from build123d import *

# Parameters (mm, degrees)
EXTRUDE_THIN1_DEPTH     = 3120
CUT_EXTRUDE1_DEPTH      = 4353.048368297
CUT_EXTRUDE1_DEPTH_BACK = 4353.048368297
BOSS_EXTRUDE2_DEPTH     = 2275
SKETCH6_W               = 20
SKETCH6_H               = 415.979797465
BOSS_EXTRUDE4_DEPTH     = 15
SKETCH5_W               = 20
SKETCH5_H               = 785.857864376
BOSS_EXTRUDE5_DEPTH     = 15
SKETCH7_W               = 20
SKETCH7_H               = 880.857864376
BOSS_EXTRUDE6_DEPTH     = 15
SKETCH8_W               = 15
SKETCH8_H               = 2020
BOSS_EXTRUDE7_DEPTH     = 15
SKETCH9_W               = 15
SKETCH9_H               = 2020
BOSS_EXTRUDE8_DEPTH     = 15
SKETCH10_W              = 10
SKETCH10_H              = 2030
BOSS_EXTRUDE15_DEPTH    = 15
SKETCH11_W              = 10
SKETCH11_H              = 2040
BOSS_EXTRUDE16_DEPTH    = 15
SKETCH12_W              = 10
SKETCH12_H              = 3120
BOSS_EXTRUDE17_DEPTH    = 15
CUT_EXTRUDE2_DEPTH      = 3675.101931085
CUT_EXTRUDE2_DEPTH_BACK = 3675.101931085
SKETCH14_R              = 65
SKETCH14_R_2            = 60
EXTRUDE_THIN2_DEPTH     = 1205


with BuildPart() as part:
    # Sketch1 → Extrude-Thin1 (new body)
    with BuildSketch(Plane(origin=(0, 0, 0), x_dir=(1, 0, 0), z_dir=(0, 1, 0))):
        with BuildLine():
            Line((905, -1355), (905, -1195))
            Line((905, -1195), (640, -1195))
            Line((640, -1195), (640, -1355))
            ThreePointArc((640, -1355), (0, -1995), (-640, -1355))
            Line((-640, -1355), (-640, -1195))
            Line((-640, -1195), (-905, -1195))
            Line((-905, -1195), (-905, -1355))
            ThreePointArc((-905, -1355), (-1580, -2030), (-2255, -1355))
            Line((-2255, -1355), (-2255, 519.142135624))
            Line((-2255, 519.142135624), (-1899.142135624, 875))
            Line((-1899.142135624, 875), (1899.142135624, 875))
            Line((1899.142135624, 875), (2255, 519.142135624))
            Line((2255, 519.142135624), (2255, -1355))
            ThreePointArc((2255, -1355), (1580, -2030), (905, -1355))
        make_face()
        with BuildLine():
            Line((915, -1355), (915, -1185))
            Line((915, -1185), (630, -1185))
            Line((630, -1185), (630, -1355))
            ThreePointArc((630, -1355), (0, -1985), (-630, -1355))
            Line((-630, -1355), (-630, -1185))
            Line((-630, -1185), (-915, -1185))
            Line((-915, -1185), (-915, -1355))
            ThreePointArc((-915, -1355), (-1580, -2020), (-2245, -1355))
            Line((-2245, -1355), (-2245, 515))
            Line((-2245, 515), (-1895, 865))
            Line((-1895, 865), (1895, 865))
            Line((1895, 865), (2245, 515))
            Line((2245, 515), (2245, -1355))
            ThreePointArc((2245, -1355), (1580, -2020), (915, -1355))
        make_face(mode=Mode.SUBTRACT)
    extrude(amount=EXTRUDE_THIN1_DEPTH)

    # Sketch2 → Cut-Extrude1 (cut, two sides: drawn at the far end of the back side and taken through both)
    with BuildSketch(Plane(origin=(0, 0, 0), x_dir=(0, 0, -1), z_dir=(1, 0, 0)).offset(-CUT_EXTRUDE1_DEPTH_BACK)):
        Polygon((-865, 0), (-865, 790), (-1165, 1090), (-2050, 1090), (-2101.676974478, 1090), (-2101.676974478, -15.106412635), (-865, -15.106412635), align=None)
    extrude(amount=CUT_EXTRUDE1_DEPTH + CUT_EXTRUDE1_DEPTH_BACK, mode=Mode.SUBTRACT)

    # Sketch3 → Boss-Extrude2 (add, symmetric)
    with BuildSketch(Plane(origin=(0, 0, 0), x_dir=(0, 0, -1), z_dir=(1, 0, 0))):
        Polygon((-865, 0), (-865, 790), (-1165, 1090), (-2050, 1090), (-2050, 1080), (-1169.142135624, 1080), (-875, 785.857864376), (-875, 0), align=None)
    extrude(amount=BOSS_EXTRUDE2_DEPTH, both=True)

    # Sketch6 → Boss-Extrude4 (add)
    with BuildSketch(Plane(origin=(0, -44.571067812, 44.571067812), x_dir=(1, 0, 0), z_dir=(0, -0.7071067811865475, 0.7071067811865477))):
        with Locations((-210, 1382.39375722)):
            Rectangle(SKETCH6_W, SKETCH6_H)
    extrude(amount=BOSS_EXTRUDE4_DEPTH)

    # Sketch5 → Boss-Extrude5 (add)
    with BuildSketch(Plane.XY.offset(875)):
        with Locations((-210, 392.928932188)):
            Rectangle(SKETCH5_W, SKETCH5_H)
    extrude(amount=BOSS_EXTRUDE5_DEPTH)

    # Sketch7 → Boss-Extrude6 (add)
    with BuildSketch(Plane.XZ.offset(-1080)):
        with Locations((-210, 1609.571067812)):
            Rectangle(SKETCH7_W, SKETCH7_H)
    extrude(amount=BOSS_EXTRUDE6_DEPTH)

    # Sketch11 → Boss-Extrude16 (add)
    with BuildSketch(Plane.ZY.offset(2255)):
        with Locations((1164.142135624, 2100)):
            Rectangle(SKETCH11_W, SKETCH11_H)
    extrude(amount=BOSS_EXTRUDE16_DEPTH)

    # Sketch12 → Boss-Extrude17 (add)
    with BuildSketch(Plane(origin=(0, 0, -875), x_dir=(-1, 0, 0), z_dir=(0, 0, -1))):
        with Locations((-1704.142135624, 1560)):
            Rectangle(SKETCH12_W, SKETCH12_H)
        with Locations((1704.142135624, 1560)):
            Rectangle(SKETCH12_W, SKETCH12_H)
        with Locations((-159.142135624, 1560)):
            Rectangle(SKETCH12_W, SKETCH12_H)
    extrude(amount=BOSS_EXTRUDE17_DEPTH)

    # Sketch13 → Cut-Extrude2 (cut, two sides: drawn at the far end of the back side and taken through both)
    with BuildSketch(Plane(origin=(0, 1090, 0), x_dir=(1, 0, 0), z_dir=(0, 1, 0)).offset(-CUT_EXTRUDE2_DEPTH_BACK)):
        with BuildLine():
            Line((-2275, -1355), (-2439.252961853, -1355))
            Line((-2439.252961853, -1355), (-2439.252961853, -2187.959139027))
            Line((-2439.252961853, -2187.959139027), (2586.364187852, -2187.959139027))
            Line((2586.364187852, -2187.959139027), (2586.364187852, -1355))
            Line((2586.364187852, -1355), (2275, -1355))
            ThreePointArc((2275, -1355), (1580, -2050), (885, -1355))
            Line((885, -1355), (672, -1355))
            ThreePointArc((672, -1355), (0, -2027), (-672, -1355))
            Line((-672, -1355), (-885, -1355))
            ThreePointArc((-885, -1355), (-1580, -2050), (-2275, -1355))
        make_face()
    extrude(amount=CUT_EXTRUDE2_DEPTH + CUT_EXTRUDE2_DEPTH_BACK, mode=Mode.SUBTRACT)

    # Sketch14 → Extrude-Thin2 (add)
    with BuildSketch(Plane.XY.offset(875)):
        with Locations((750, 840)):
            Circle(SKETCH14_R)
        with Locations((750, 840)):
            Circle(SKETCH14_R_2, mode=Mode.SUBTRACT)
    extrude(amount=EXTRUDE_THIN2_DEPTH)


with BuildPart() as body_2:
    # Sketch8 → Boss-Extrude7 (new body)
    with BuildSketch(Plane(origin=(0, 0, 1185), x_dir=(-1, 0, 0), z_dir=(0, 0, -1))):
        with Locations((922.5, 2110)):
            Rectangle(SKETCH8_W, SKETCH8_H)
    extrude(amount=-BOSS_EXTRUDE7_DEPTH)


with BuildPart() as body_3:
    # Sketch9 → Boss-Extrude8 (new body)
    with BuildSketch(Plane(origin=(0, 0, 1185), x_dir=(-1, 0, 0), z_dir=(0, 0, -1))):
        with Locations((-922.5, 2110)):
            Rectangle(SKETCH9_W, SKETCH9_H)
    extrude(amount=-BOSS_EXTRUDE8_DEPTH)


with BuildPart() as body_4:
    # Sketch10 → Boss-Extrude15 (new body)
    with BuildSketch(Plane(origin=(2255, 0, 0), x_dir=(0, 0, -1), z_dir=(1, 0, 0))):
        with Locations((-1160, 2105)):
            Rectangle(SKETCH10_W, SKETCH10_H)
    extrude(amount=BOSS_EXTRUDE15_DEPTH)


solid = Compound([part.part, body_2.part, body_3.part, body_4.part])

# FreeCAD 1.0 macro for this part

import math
import FreeCAD as App
import Part
import Sketcher
from FreeCAD import Vector
Q = App.Units.Quantity


def add_polygon(sketch, points):
    """Adds a closed chain of lines whose ends are joined by coincident constraints."""
    first, n = sketch.GeometryCount, len(points)
    for a, b in zip(points, points[1:] + points[:1]):
        sketch.addGeometry(Part.LineSegment(App.Vector(*a, 0), App.Vector(*b, 0)), False)
    for i in range(n):
        sketch.addConstraint(Sketcher.Constraint("Coincident", first + i, 2, first + (i + 1) % n, 1))

doc = App.newDocument("Part")
body = doc.addObject("PartDesign::Body", "Body")

# Sketch on XZ plane
sketch1 = body.newObject("Sketcher::SketchObject", "Sketch")
sketch1.AttachmentSupport = (doc.getObject("XZ_Plane"), [""])
sketch1.MapMode = "FlatFace"
sketch1.addGeometry(Part.LineSegment(Vector(905, 1195, 0), Vector(905, 1355, 0)), False)
sketch1.addGeometry(Part.ArcOfCircle(Part.Circle(Vector(1580, 1355, 0), Vector(0, 0, 1), 675), math.radians(0), math.radians(180)), False)
sketch1.addGeometry(Part.LineSegment(Vector(2255, 1355, 0), Vector(2255, -519, 0)), False)
sketch1.addGeometry(Part.LineSegment(Vector(2255, -519, 0), Vector(1899, -875, 0)), False)
sketch1.addGeometry(Part.LineSegment(Vector(1899, -875, 0), Vector(-1899, -875, 0)), False)
sketch1.addGeometry(Part.LineSegment(Vector(-1899, -875, 0), Vector(-2255, -519, 0)), False)
sketch1.addGeometry(Part.LineSegment(Vector(-2255, -519, 0), Vector(-2255, 1355, 0)), False)
sketch1.addGeometry(Part.ArcOfCircle(Part.Circle(Vector(-1580, 1355, 0), Vector(0, 0, 1), 675), math.radians(0), math.radians(180)), False)
sketch1.addGeometry(Part.LineSegment(Vector(-905, 1355, 0), Vector(-905, 1195, 0)), False)
sketch1.addGeometry(Part.LineSegment(Vector(-905, 1195, 0), Vector(-640, 1195, 0)), False)
sketch1.addGeometry(Part.LineSegment(Vector(-640, 1195, 0), Vector(-640, 1355, 0)), False)
sketch1.addGeometry(Part.ArcOfCircle(Part.Circle(Vector(0, 1355, 0), Vector(0, 0, 1), 640), math.radians(0), math.radians(180)), False)
sketch1.addGeometry(Part.LineSegment(Vector(640, 1355, 0), Vector(640, 1195, 0)), False)
sketch1.addGeometry(Part.LineSegment(Vector(640, 1195, 0), Vector(905, 1195, 0)), False)
sketch1.addGeometry(Part.LineSegment(Vector(915, 1355, 0), Vector(915, 1185, 0)), False)
sketch1.addGeometry(Part.LineSegment(Vector(915, 1185, 0), Vector(630, 1185, 0)), False)
sketch1.addGeometry(Part.LineSegment(Vector(630, 1185, 0), Vector(630, 1355, 0)), False)
sketch1.addGeometry(Part.ArcOfCircle(Part.Circle(Vector(0, 1355, 0), Vector(0, 0, 1), 630), math.radians(0), math.radians(180)), False)
sketch1.addGeometry(Part.LineSegment(Vector(-630, 1355, 0), Vector(-630, 1185, 0)), False)
sketch1.addGeometry(Part.LineSegment(Vector(-630, 1185, 0), Vector(-915, 1185, 0)), False)
sketch1.addGeometry(Part.LineSegment(Vector(-915, 1185, 0), Vector(-915, 1355, 0)), False)
sketch1.addGeometry(Part.ArcOfCircle(Part.Circle(Vector(-1580, 1355, 0), Vector(0, 0, 1), 665), math.radians(0), math.radians(180)), False)
sketch1.addGeometry(Part.LineSegment(Vector(-2245, 1355, 0), Vector(-2245, -515, 0)), False)
sketch1.addGeometry(Part.LineSegment(Vector(-2245, -515, 0), Vector(-1895, -865, 0)), False)
sketch1.addGeometry(Part.LineSegment(Vector(-1895, -865, 0), Vector(1895, -865, 0)), False)
sketch1.addGeometry(Part.LineSegment(Vector(1895, -865, 0), Vector(2245, -515, 0)), False)
sketch1.addGeometry(Part.LineSegment(Vector(2245, -515, 0), Vector(2245, 1355, 0)), False)
sketch1.addGeometry(Part.ArcOfCircle(Part.Circle(Vector(1580, 1355, 0), Vector(0, 0, 1), 665), math.radians(0), math.radians(180)), False)
sketch1.addConstraint(Sketcher.Constraint("Tangent", 0, 2, 1, 2))
sketch1.addConstraint(Sketcher.Constraint("Tangent", 1, 1, 2, 1))
sketch1.addConstraint(Sketcher.Constraint("Coincident", 2, 2, 3, 1))
sketch1.addConstraint(Sketcher.Constraint("Coincident", 3, 2, 4, 1))
sketch1.addConstraint(Sketcher.Constraint("Coincident", 4, 2, 5, 1))
sketch1.addConstraint(Sketcher.Constraint("Coincident", 5, 2, 6, 1))
sketch1.addConstraint(Sketcher.Constraint("Tangent", 6, 2, 7, 2))
sketch1.addConstraint(Sketcher.Constraint("Tangent", 7, 1, 8, 1))
sketch1.addConstraint(Sketcher.Constraint("Coincident", 8, 2, 9, 1))
sketch1.addConstraint(Sketcher.Constraint("Coincident", 9, 2, 10, 1))
sketch1.addConstraint(Sketcher.Constraint("Tangent", 10, 2, 11, 2))
sketch1.addConstraint(Sketcher.Constraint("Tangent", 11, 1, 12, 1))
sketch1.addConstraint(Sketcher.Constraint("Coincident", 12, 2, 13, 1))
sketch1.addConstraint(Sketcher.Constraint("Coincident", 13, 2, 0, 1))
sketch1.addConstraint(Sketcher.Constraint("Coincident", 14, 2, 15, 1))
sketch1.addConstraint(Sketcher.Constraint("Coincident", 15, 2, 16, 1))
sketch1.addConstraint(Sketcher.Constraint("Tangent", 16, 2, 17, 1))
sketch1.addConstraint(Sketcher.Constraint("Tangent", 17, 2, 18, 1))
sketch1.addConstraint(Sketcher.Constraint("Coincident", 18, 2, 19, 1))
sketch1.addConstraint(Sketcher.Constraint("Coincident", 19, 2, 20, 1))
sketch1.addConstraint(Sketcher.Constraint("Tangent", 20, 2, 21, 1))
sketch1.addConstraint(Sketcher.Constraint("Tangent", 21, 2, 22, 1))
sketch1.addConstraint(Sketcher.Constraint("Coincident", 22, 2, 23, 1))
sketch1.addConstraint(Sketcher.Constraint("Coincident", 23, 2, 24, 1))
sketch1.addConstraint(Sketcher.Constraint("Coincident", 24, 2, 25, 1))
sketch1.addConstraint(Sketcher.Constraint("Coincident", 25, 2, 26, 1))
sketch1.addConstraint(Sketcher.Constraint("Tangent", 26, 2, 27, 1))
sketch1.addConstraint(Sketcher.Constraint("Tangent", 27, 2, 14, 1))
sketch1.addConstraint(Sketcher.Constraint("Vertical", 0))
sketch1.addConstraint(Sketcher.Constraint("Vertical", 2))
sketch1.addConstraint(Sketcher.Constraint("Horizontal", 4))
sketch1.addConstraint(Sketcher.Constraint("Vertical", 6))
sketch1.addConstraint(Sketcher.Constraint("Vertical", 8))
sketch1.addConstraint(Sketcher.Constraint("Horizontal", 9))
sketch1.addConstraint(Sketcher.Constraint("Vertical", 10))
sketch1.addConstraint(Sketcher.Constraint("Vertical", 12))
sketch1.addConstraint(Sketcher.Constraint("Horizontal", 13))
sketch1.addConstraint(Sketcher.Constraint("Vertical", 14))
sketch1.addConstraint(Sketcher.Constraint("Horizontal", 15))
sketch1.addConstraint(Sketcher.Constraint("Vertical", 16))
sketch1.addConstraint(Sketcher.Constraint("Vertical", 18))
sketch1.addConstraint(Sketcher.Constraint("Horizontal", 19))
sketch1.addConstraint(Sketcher.Constraint("Vertical", 20))
sketch1.addConstraint(Sketcher.Constraint("Vertical", 22))
sketch1.addConstraint(Sketcher.Constraint("Horizontal", 24))
sketch1.addConstraint(Sketcher.Constraint("Vertical", 26))
sketch1.addConstraint(Sketcher.Constraint("Coincident", 17, 3, 11, 3))
sketch1.addConstraint(Sketcher.Constraint("Coincident", 21, 3, 7, 3))
sketch1.addConstraint(Sketcher.Constraint("Coincident", 27, 3, 1, 3))
sketch1.addConstraint(Sketcher.Constraint("Equal", 1, 7))
sketch1.addConstraint(Sketcher.Constraint("Equal", 21, 27))
sketch1.addConstraint(Sketcher.Constraint("Symmetric", 1, 3, 7, 3, -2))
sketch1.addConstraint(Sketcher.Constraint("Symmetric", 9, 2, 12, 2, -2))
sketch1.addConstraint(Sketcher.Constraint("Perpendicular", 3, 5))
sketch1.addConstraint(Sketcher.Constraint("Parallel", 5, 23))
sketch1.addConstraint(Sketcher.Constraint("Perpendicular", 23, 25))
sketch1.addConstraint(Sketcher.Constraint("Horizontal", 7, 3, 11, 3))
sketch1.addConstraint(Sketcher.Constraint("Horizontal", 2, 2, 5, 2))
sketch1.addConstraint(Sketcher.Constraint("Horizontal", 15, 2, 18, 2))
sketch1.addConstraint(Sketcher.Constraint("Horizontal", 22, 2, 25, 2))
sketch1.addConstraint(Sketcher.Constraint("Equal", 3, 5))
sketch1.addConstraint(Sketcher.Constraint("Radius", 1, 675.0))
sketch1.addConstraint(Sketcher.Constraint("Radius", 11, 640.0))
sketch1.addConstraint(Sketcher.Constraint("Radius", 17, 630.0))
sketch1.addConstraint(Sketcher.Constraint("Radius", 21, 665.0))
sketch1.addConstraint(Sketcher.Constraint("DistanceX", 9, 1, 9, 2, 265.0))
sketch1.addConstraint(Sketcher.Constraint("DistanceX", 24, 1, 24, 2, 3790.0))
sketch1.addConstraint(Sketcher.Constraint("DistanceY", 0, 1, 0, 2, 160.0))
sketch1.addConstraint(Sketcher.Constraint("DistanceY", 14, 2, 14, 1, 170.0))
sketch1.addConstraint(Sketcher.Constraint("DistanceY", 22, 2, 22, 1, 1870.0))
sketch1.addConstraint(Sketcher.Constraint("DistanceY", -1, 1, 1, 3, 1355.0))
sketch1.addConstraint(Sketcher.Constraint("DistanceY", 3, 2, -1, 1, 875.0))
sketch1.addConstraint(Sketcher.Constraint("DistanceX", 4, 2, 4, 1, 3798.284271))
pad1 = body.newObject("PartDesign::Pad", "Pad")
pad1.Profile = sketch1
pad1.Length = 3120
pad1.Reversed = True

# Sketch on YZ plane
sketch2 = body.newObject("Sketcher::SketchObject", "Sketch001")
sketch2.AttachmentSupport = (doc.getObject("YZ_Plane"), [""])
sketch2.MapMode = "FlatFace"
add_polygon(sketch2, [(790, 865), (1090, 1165), (1090, 2102), (-15, 2102), (-15, 865)])  # lines 0-4
sketch2.addConstraint(Sketcher.Constraint("Vertical", 1))
sketch2.addConstraint(Sketcher.Constraint("Horizontal", 2))
sketch2.addConstraint(Sketcher.Constraint("Vertical", 3))
sketch2.addConstraint(Sketcher.Constraint("Horizontal", 4))
sketch2.addConstraint(Sketcher.Constraint("Angle", 0, Q("45 deg")))
sketch2.addConstraint(Sketcher.Constraint("DistanceX", -1, 1, 0, 2, 1090.0))
sketch2.addConstraint(Sketcher.Constraint("DistanceY", -1, 1, 0, 2, 1165.0))
sketch2.addConstraint(Sketcher.Constraint("DistanceY", -1, 1, 3, 2, 865.0))
sketch2.addConstraint(Sketcher.Constraint("DistanceX", 2, 2, 2, 1, 1105.106413))
sketch2.addConstraint(Sketcher.Constraint("DistanceY", 1, 1, 1, 2, 936.676974))
pocket1 = body.newObject("PartDesign::Pocket", "Pocket")
pocket1.Profile = sketch2
pocket1.Type = "ThroughAll"
pocket1.Midplane = True

# Sketch on YZ plane
sketch3 = body.newObject("Sketcher::SketchObject", "Sketch002")
sketch3.AttachmentSupport = (doc.getObject("YZ_Plane"), [""])
sketch3.MapMode = "FlatFace"
add_polygon(sketch3, [(0, 865), (790, 865), (1090, 1165), (1090, 2050), (1080, 2050), (1080, 1169), (786, 875), (0, 875)])  # lines 0-7
sketch3.addConstraint(Sketcher.Constraint("Horizontal", 0))
sketch3.addConstraint(Sketcher.Constraint("Vertical", 2))
sketch3.addConstraint(Sketcher.Constraint("Horizontal", 3))
sketch3.addConstraint(Sketcher.Constraint("Vertical", 4))
sketch3.addConstraint(Sketcher.Constraint("Horizontal", 6))
sketch3.addConstraint(Sketcher.Constraint("Vertical", 7))
sketch3.addConstraint(Sketcher.Constraint("PointOnObject", 6, 2, -2))
sketch3.addConstraint(Sketcher.Constraint("Parallel", 1, 5))
sketch3.addConstraint(Sketcher.Constraint("Equal", 3, 7))
sketch3.addConstraint(Sketcher.Constraint("DistanceX", 0, 1, 0, 2, 790.0))
sketch3.addConstraint(Sketcher.Constraint("DistanceX", 3, 2, 3, 1, 10.0))
sketch3.addConstraint(Sketcher.Constraint("DistanceY", 2, 1, 2, 2, 885.0))
sketch3.addConstraint(Sketcher.Constraint("Angle", 1, Q("45 deg")))
sketch3.addConstraint(Sketcher.Constraint("DistanceY", -1, 1, 0, 2, 865.0))
sketch3.addConstraint(Sketcher.Constraint("DistanceX", -1, 1, 1, 2, 1090.0))
sketch3.addConstraint(Sketcher.Constraint("DistanceX", 6, 2, 6, 1, 785.857864))
pad2 = body.newObject("PartDesign::Pad", "Pad001")
pad2.Profile = sketch3
pad2.Length = 4550
pad2.Midplane = True

# Sketch on an angled plane
sketch4 = body.newObject("Sketcher::SketchObject", "Sketch003")
sketch4.Placement = App.Placement(Vector(0, -44.571068, 44.571068), App.Rotation(Vector(1, 0, 0), Vector(0, 0.707106781, 0.707106781), Vector(0, -0.707106781, 0.707106781), "ZXY"))
add_polygon(sketch4, [(-220, 1590), (-220, 1174), (-200, 1174), (-200, 1590)])  # lines 0-3
sketch4.addConstraint(Sketcher.Constraint("Vertical", 0))
sketch4.addConstraint(Sketcher.Constraint("Horizontal", 1))
sketch4.addConstraint(Sketcher.Constraint("Vertical", 2))
sketch4.addConstraint(Sketcher.Constraint("Horizontal", 3))
sketch4.addConstraint(Sketcher.Constraint("DistanceX", 1, 1, 1, 2, 20.0))
sketch4.addConstraint(Sketcher.Constraint("DistanceX", 0, 2, -1, 1, 220.0))
sketch4.addConstraint(Sketcher.Constraint("DistanceY", 0, 2, 0, 1, 415.979797))
sketch4.addConstraint(Sketcher.Constraint("DistanceY", -1, 1, 0, 2, 1174.403858))
pad3 = body.newObject("PartDesign::Pad", "Pad002")
pad3.Profile = sketch4
pad3.Length = 15

# Sketch on XY plane
sketch5 = body.newObject("Sketcher::SketchObject", "Sketch004")
sketch5.AttachmentSupport = (doc.getObject("XY_Plane"), [""])
sketch5.MapMode = "FlatFace"
sketch5.AttachmentOffset = App.Placement(Vector(0, 0, 875), App.Rotation())
add_polygon(sketch5, [(-220, 786), (-220, 0), (-200, 0), (-200, 786)])  # lines 0-3
sketch5.addConstraint(Sketcher.Constraint("Vertical", 0))
sketch5.addConstraint(Sketcher.Constraint("Horizontal", 1))
sketch5.addConstraint(Sketcher.Constraint("Vertical", 2))
sketch5.addConstraint(Sketcher.Constraint("Horizontal", 3))
sketch5.addConstraint(Sketcher.Constraint("PointOnObject", 0, 2, -1))
sketch5.addConstraint(Sketcher.Constraint("DistanceX", 1, 1, 1, 2, 20.0))
sketch5.addConstraint(Sketcher.Constraint("DistanceX", 0, 2, -1, 1, 220.0))
sketch5.addConstraint(Sketcher.Constraint("DistanceY", 0, 2, 0, 1, 785.857864))
pad4 = body.newObject("PartDesign::Pad", "Pad003")
pad4.Profile = sketch5
pad4.Length = 15

# Sketch on XZ plane
sketch6 = body.newObject("Sketcher::SketchObject", "Sketch005")
sketch6.AttachmentSupport = (doc.getObject("XZ_Plane"), [""])
sketch6.MapMode = "FlatFace"
sketch6.AttachmentOffset = App.Placement(Vector(0, 0, -1080), App.Rotation())
add_polygon(sketch6, [(-220, 2050), (-220, 1169), (-200, 1169), (-200, 2050)])  # lines 0-3
sketch6.addConstraint(Sketcher.Constraint("Vertical", 0))
sketch6.addConstraint(Sketcher.Constraint("Horizontal", 1))
sketch6.addConstraint(Sketcher.Constraint("Vertical", 2))
sketch6.addConstraint(Sketcher.Constraint("Horizontal", 3))
sketch6.addConstraint(Sketcher.Constraint("DistanceX", 1, 1, 1, 2, 20.0))
sketch6.addConstraint(Sketcher.Constraint("DistanceX", 0, 2, -1, 1, 220.0))
sketch6.addConstraint(Sketcher.Constraint("DistanceY", -1, 1, 2, 2, 2050.0))
sketch6.addConstraint(Sketcher.Constraint("DistanceY", 0, 2, 0, 1, 880.857864))
pad5 = body.newObject("PartDesign::Pad", "Pad004")
pad5.Profile = sketch6
pad5.Length = 15

# Sketch on YZ plane
sketch7 = body.newObject("Sketcher::SketchObject", "Sketch006")
sketch7.AttachmentSupport = (doc.getObject("YZ_Plane"), [""])
sketch7.MapMode = "FlatFace"
sketch7.AttachmentOffset = App.Placement(Vector(0, 0, -2255), App.Rotation())
add_polygon(sketch7, [(3120, 1159), (1080, 1159), (1080, 1169), (3120, 1169)])  # lines 0-3
sketch7.addConstraint(Sketcher.Constraint("Horizontal", 0))
sketch7.addConstraint(Sketcher.Constraint("Vertical", 1))
sketch7.addConstraint(Sketcher.Constraint("Horizontal", 2))
sketch7.addConstraint(Sketcher.Constraint("Vertical", 3))
sketch7.addConstraint(Sketcher.Constraint("DistanceX", 0, 2, 0, 1, 2040.0))
sketch7.addConstraint(Sketcher.Constraint("DistanceY", 1, 1, 1, 2, 10.0))
sketch7.addConstraint(Sketcher.Constraint("DistanceX", -1, 1, 0, 2, 1080.0))
sketch7.addConstraint(Sketcher.Constraint("DistanceY", -1, 1, 0, 2, 1159.142136))
pad6 = body.newObject("PartDesign::Pad", "Pad005")
pad6.Profile = sketch7
pad6.Length = 15
pad6.Reversed = True

# Sketch on XY plane
sketch8 = body.newObject("Sketcher::SketchObject", "Sketch007")
sketch8.AttachmentSupport = (doc.getObject("XY_Plane"), [""])
sketch8.MapMode = "FlatFace"
sketch8.AttachmentOffset = App.Placement(Vector(0, 0, -875), App.Rotation())
add_polygon(sketch8, [(1709, 3120), (1709, 0), (1699, 0), (1699, 3120)])  # lines 0-3
add_polygon(sketch8, [(-1699, 3120), (-1699, 0), (-1709, 0), (-1709, 3120)])  # lines 4-7
add_polygon(sketch8, [(164, 3120), (164, 0), (154, 0), (154, 3120)])  # lines 8-11
sketch8.addConstraint(Sketcher.Constraint("Vertical", 0))
sketch8.addConstraint(Sketcher.Constraint("Horizontal", 1))
sketch8.addConstraint(Sketcher.Constraint("Vertical", 2))
sketch8.addConstraint(Sketcher.Constraint("Horizontal", 3))
sketch8.addConstraint(Sketcher.Constraint("Vertical", 4))
sketch8.addConstraint(Sketcher.Constraint("Horizontal", 5))
sketch8.addConstraint(Sketcher.Constraint("Vertical", 6))
sketch8.addConstraint(Sketcher.Constraint("Horizontal", 7))
sketch8.addConstraint(Sketcher.Constraint("Vertical", 8))
sketch8.addConstraint(Sketcher.Constraint("Horizontal", 9))
sketch8.addConstraint(Sketcher.Constraint("Vertical", 10))
sketch8.addConstraint(Sketcher.Constraint("Horizontal", 11))
sketch8.addConstraint(Sketcher.Constraint("Symmetric", 1, 2, 4, 2, -1, 1))
sketch8.addConstraint(Sketcher.Constraint("Symmetric", 0, 2, 5, 2, -2))
sketch8.addConstraint(Sketcher.Constraint("PointOnObject", 8, 2, -1))
sketch8.addConstraint(Sketcher.Constraint("Horizontal", 3, 2, 6, 2))
sketch8.addConstraint(Sketcher.Constraint("Horizontal", 7, 2, 10, 2))
sketch8.addConstraint(Sketcher.Constraint("Equal", 7, 9))
sketch8.addConstraint(Sketcher.Constraint("DistanceX", 1, 2, 1, 1, 10.0))
sketch8.addConstraint(Sketcher.Constraint("DistanceY", 0, 2, 0, 1, 3120.0))
sketch8.addConstraint(Sketcher.Constraint("DistanceX", 8, 2, 1, 2, 1535.0))
sketch8.addConstraint(Sketcher.Constraint("DistanceX", 4, 2, 1, 2, 3398.284271))
pad7 = body.newObject("PartDesign::Pad", "Pad006")
pad7.Profile = sketch8
pad7.Length = 15
pad7.Reversed = True

# Sketch on XZ plane
sketch9 = body.newObject("Sketcher::SketchObject", "Sketch008")
sketch9.AttachmentSupport = (doc.getObject("XZ_Plane"), [""])
sketch9.MapMode = "FlatFace"
sketch9.AttachmentOffset = App.Placement(Vector(0, 0, -1090), App.Rotation())
sketch9.addGeometry(Part.LineSegment(Vector(-2275, 1355, 0), Vector(-2439, 1355, 0)), False)
sketch9.addGeometry(Part.LineSegment(Vector(-2439, 1355, 0), Vector(-2439, 2188, 0)), False)
sketch9.addGeometry(Part.LineSegment(Vector(-2439, 2188, 0), Vector(2586, 2188, 0)), False)
sketch9.addGeometry(Part.LineSegment(Vector(2586, 2188, 0), Vector(2586, 1355, 0)), False)
sketch9.addGeometry(Part.LineSegment(Vector(2586, 1355, 0), Vector(2275, 1355, 0)), False)
sketch9.addGeometry(Part.ArcOfCircle(Part.Circle(Vector(1580, 1355, 0), Vector(0, 0, 1), 695), math.radians(0), math.radians(180)), False)
sketch9.addGeometry(Part.LineSegment(Vector(885, 1355, 0), Vector(672, 1355, 0)), False)
sketch9.addGeometry(Part.ArcOfCircle(Part.Circle(Vector(0, 1355, 0), Vector(0, 0, 1), 672), math.radians(0), math.radians(180)), False)
sketch9.addGeometry(Part.LineSegment(Vector(-672, 1355, 0), Vector(-885, 1355, 0)), False)
sketch9.addGeometry(Part.ArcOfCircle(Part.Circle(Vector(-1580, 1355, 0), Vector(0, 0, 1), 695), math.radians(0), math.radians(180)), False)
sketch9.addConstraint(Sketcher.Constraint("Coincident", 0, 2, 1, 1))
sketch9.addConstraint(Sketcher.Constraint("Coincident", 1, 2, 2, 1))
sketch9.addConstraint(Sketcher.Constraint("Coincident", 2, 2, 3, 1))
sketch9.addConstraint(Sketcher.Constraint("Coincident", 3, 2, 4, 1))
sketch9.addConstraint(Sketcher.Constraint("Coincident", 4, 2, 5, 1))
sketch9.addConstraint(Sketcher.Constraint("Coincident", 5, 2, 6, 1))
sketch9.addConstraint(Sketcher.Constraint("Coincident", 6, 2, 7, 1))
sketch9.addConstraint(Sketcher.Constraint("Coincident", 7, 2, 8, 1))
sketch9.addConstraint(Sketcher.Constraint("Coincident", 8, 2, 9, 1))
sketch9.addConstraint(Sketcher.Constraint("Coincident", 9, 2, 0, 1))
sketch9.addConstraint(Sketcher.Constraint("Horizontal", 0))
sketch9.addConstraint(Sketcher.Constraint("Vertical", 1))
sketch9.addConstraint(Sketcher.Constraint("Horizontal", 2))
sketch9.addConstraint(Sketcher.Constraint("Vertical", 3))
sketch9.addConstraint(Sketcher.Constraint("Horizontal", 4))
sketch9.addConstraint(Sketcher.Constraint("Horizontal", 6))
sketch9.addConstraint(Sketcher.Constraint("Horizontal", 8))
sketch9.addConstraint(Sketcher.Constraint("Equal", 5, 9))
sketch9.addConstraint(Sketcher.Constraint("Symmetric", 5, 3, 9, 3, -2))
sketch9.addConstraint(Sketcher.Constraint("PointOnObject", 7, 3, -2))
sketch9.addConstraint(Sketcher.Constraint("Horizontal", 5, 3, 7, 3))
sketch9.addConstraint(Sketcher.Constraint("Horizontal", 9, 3, 0, 2))
sketch9.addConstraint(Sketcher.Constraint("Horizontal", 0, 2, 3, 2))
sketch9.addConstraint(Sketcher.Constraint("Radius", 5, 695.0))
sketch9.addConstraint(Sketcher.Constraint("Radius", 7, 672.0))
sketch9.addConstraint(Sketcher.Constraint("DistanceX", 6, 2, 6, 1, 213.0))
sketch9.addConstraint(Sketcher.Constraint("DistanceY", -1, 1, 5, 3, 1355.0))
sketch9.addConstraint(Sketcher.Constraint("DistanceY", -1, 1, 6, 2, 1355.0))
sketch9.addConstraint(Sketcher.Constraint("DistanceY", -1, 1, 8, 2, 1355.0))
sketch9.addConstraint(Sketcher.Constraint("DistanceX", 0, 2, 0, 1, 164.252962))
sketch9.addConstraint(Sketcher.Constraint("DistanceX", 2, 1, 2, 2, 5025.61715))
sketch9.addConstraint(Sketcher.Constraint("DistanceY", 1, 1, 1, 2, 832.959139))
pocket2 = body.newObject("PartDesign::Pocket", "Pocket001")
pocket2.Profile = sketch9
pocket2.Type = "ThroughAll"
pocket2.Midplane = True

# Sketch on XY plane
sketch10 = body.newObject("Sketcher::SketchObject", "Sketch009")
sketch10.AttachmentSupport = (doc.getObject("XY_Plane"), [""])
sketch10.MapMode = "FlatFace"
sketch10.AttachmentOffset = App.Placement(Vector(0, 0, 875), App.Rotation())
sketch10.addGeometry(Part.Circle(Vector(750, 840, 0), Vector(0, 0, 1), 65), False)
sketch10.addGeometry(Part.Circle(Vector(750, 840, 0), Vector(0, 0, 1), 60), False)
sketch10.addConstraint(Sketcher.Constraint("Coincident", 1, 3, 0, 3))
sketch10.addConstraint(Sketcher.Constraint("Diameter", 0, 130.0))
sketch10.addConstraint(Sketcher.Constraint("Diameter", 1, 120.0))
sketch10.addConstraint(Sketcher.Constraint("DistanceX", -1, 1, 0, 3, 750.0))
sketch10.addConstraint(Sketcher.Constraint("DistanceY", -1, 1, 0, 3, 840.0))
pad8 = body.newObject("PartDesign::Pad", "Pad007")
pad8.Profile = sketch10
pad8.Length = 1205
body2 = doc.addObject("PartDesign::Body", "Body001")

# Sketch on XY plane
sketch11 = body2.newObject("Sketcher::SketchObject", "Sketch010")
sketch11.AttachmentSupport = (doc.getObject("XY_Plane001"), [""])
sketch11.MapMode = "FlatFace"
sketch11.AttachmentOffset = App.Placement(Vector(0, 0, 1185), App.Rotation())
add_polygon(sketch11, [(-915, 3120), (-915, 1100), (-930, 1100), (-930, 3120)])  # lines 0-3
sketch11.addConstraint(Sketcher.Constraint("Vertical", 0))
sketch11.addConstraint(Sketcher.Constraint("Horizontal", 1))
sketch11.addConstraint(Sketcher.Constraint("Vertical", 2))
sketch11.addConstraint(Sketcher.Constraint("Horizontal", 3))
sketch11.addConstraint(Sketcher.Constraint("DistanceX", 1, 2, 1, 1, 15.0))
sketch11.addConstraint(Sketcher.Constraint("DistanceY", 0, 2, 0, 1, 2020.0))
sketch11.addConstraint(Sketcher.Constraint("DistanceX", 0, 2, -1, 1, 915.0))
sketch11.addConstraint(Sketcher.Constraint("DistanceY", -1, 1, 0, 2, 1100.0))
pad9 = body2.newObject("PartDesign::Pad", "Pad008")
pad9.Profile = sketch11
pad9.Length = 15
body3 = doc.addObject("PartDesign::Body", "Body002")

# Sketch on XY plane
sketch12 = body3.newObject("Sketcher::SketchObject", "Sketch011")
sketch12.AttachmentSupport = (doc.getObject("XY_Plane002"), [""])
sketch12.MapMode = "FlatFace"
sketch12.AttachmentOffset = App.Placement(Vector(0, 0, 1185), App.Rotation())
add_polygon(sketch12, [(930, 3120), (930, 1100), (915, 1100), (915, 3120)])  # lines 0-3
sketch12.addConstraint(Sketcher.Constraint("Vertical", 0))
sketch12.addConstraint(Sketcher.Constraint("Horizontal", 1))
sketch12.addConstraint(Sketcher.Constraint("Vertical", 2))
sketch12.addConstraint(Sketcher.Constraint("Horizontal", 3))
sketch12.addConstraint(Sketcher.Constraint("DistanceX", 1, 2, 1, 1, 15.0))
sketch12.addConstraint(Sketcher.Constraint("DistanceY", 0, 2, 0, 1, 2020.0))
sketch12.addConstraint(Sketcher.Constraint("DistanceX", -1, 1, 0, 2, 930.0))
sketch12.addConstraint(Sketcher.Constraint("DistanceY", -1, 1, 0, 2, 1100.0))
pad10 = body3.newObject("PartDesign::Pad", "Pad009")
pad10.Profile = sketch12
pad10.Length = 15
body4 = doc.addObject("PartDesign::Body", "Body003")

# Sketch on YZ plane
sketch13 = body4.newObject("Sketcher::SketchObject", "Sketch012")
sketch13.AttachmentSupport = (doc.getObject("YZ_Plane003"), [""])
sketch13.MapMode = "FlatFace"
sketch13.AttachmentOffset = App.Placement(Vector(0, 0, 2255), App.Rotation())
add_polygon(sketch13, [(3120, 1165), (1090, 1165), (1090, 1155), (3120, 1155)])  # lines 0-3
sketch13.addConstraint(Sketcher.Constraint("Horizontal", 0))
sketch13.addConstraint(Sketcher.Constraint("Vertical", 1))
sketch13.addConstraint(Sketcher.Constraint("Horizontal", 2))
sketch13.addConstraint(Sketcher.Constraint("Vertical", 3))
sketch13.addConstraint(Sketcher.Constraint("DistanceX", 0, 2, 0, 1, 2030.0))
sketch13.addConstraint(Sketcher.Constraint("DistanceY", 1, 2, 1, 1, 10.0))
sketch13.addConstraint(Sketcher.Constraint("DistanceX", -1, 1, 0, 2, 1090.0))
sketch13.addConstraint(Sketcher.Constraint("DistanceY", -1, 1, 0, 2, 1165.0))
pad11 = body4.newObject("PartDesign::Pad", "Pad010")
pad11.Profile = sketch13
pad11.Length = 15

doc.recompute()
